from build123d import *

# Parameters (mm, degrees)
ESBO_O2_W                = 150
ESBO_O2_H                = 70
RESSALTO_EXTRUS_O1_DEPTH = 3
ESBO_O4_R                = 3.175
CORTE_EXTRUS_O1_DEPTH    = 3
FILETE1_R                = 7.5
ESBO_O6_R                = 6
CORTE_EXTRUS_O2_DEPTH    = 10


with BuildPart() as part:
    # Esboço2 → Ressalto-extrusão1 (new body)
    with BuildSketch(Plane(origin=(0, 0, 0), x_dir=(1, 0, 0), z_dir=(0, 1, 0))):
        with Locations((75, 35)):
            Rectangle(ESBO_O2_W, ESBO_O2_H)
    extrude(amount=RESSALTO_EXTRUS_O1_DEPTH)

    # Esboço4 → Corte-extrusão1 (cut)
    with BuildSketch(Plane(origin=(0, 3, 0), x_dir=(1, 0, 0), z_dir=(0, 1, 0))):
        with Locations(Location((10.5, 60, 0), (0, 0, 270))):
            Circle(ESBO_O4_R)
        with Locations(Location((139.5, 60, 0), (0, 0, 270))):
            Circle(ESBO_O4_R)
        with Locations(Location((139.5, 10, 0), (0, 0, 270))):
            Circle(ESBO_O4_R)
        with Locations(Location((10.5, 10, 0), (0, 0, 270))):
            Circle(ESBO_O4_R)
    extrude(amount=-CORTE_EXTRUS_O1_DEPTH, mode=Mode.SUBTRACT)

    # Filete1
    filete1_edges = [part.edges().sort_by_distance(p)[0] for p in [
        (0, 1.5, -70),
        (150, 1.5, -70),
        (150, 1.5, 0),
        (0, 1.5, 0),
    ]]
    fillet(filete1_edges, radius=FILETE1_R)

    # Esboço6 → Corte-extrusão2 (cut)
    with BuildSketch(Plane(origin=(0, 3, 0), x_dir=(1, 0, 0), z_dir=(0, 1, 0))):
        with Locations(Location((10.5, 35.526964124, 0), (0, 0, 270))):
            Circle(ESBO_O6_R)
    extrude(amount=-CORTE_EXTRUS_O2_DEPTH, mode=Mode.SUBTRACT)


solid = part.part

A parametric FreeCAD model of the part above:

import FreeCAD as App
import Part
import Sketcher
from FreeCAD import Vector
Q = App.Units.Quantity


def edges_at(feature, points):
    """Names of the edges that pass closest to the given points."""
    edges = feature.Shape.Edges
    near = lambda p: min(range(len(edges)), key=lambda i: edges[i].distToShape(Part.Vertex(*p))[0])
    return sorted({f"Edge{near(p) + 1}" for p in points})

doc = App.newDocument("Part")
body = doc.addObject("PartDesign::Body", "Body")

# Sketch on XZ plane
sketch1 = doc.addObject("Sketcher::SketchObject", "Sketch")
body.addObject(sketch1)
sketch1.AttachmentSupport = (doc.XZ_Plane, [""])
sketch1.MapMode = "FlatFace"
sketch1.addGeometry(Part.LineSegment(Vector(0, -70, 0), Vector(0, 0, 0)), False)
sketch1.addGeometry(Part.LineSegment(Vector(0, 0, 0), Vector(150, 0, 0)), False)
sketch1.addGeometry(Part.LineSegment(Vector(150, 0, 0), Vector(150, -70, 0)), False)
sketch1.addGeometry(Part.LineSegment(Vector(150, -70, 0), Vector(0, -70, 0)), False)
sketch1.addConstraint(Sketcher.Constraint("Coincident", 0, 2, 1, 1))
sketch1.addConstraint(Sketcher.Constraint("Coincident", 1, 2, 2, 1))
sketch1.addConstraint(Sketcher.Constraint("Coincident", 2, 2, 3, 1))
sketch1.addConstraint(Sketcher.Constraint("Coincident", 3, 2, 0, 1))
sketch1.addConstraint(Sketcher.Constraint("Vertical", 0))
sketch1.addConstraint(Sketcher.Constraint("Horizontal", 1))
sketch1.addConstraint(Sketcher.Constraint("Vertical", 2))
sketch1.addConstraint(Sketcher.Constraint("Horizontal", 3))
sketch1.addConstraint(Sketcher.Constraint("Coincident", 0, 2, -1, 1))
sketch1.addConstraint(Sketcher.Constraint("DistanceX", 1, 1, 1, 2, Q("150 mm")))
sketch1.addConstraint(Sketcher.Constraint("DistanceY", 0, 1, 0, 2, Q("70 mm")))
pad1 = doc.addObject("PartDesign::Pad", "Pad")
body.addObject(pad1)
pad1.Profile = sketch1
pad1.Length = 3
pad1.Reversed = True

# Sketch on XZ plane
sketch2 = doc.addObject("Sketcher::SketchObject", "Sketch001")
body.addObject(sketch2)
sketch2.AttachmentSupport = (doc.XZ_Plane, [""])
sketch2.MapMode = "FlatFace"
sketch2.AttachmentOffset = App.Placement(Vector(0, 0, -3), App.Rotation())
sketch2.addGeometry(Part.Circle(Vector(10.5, -60, 0), Vector(0, 0, 1), 3.2), False)
sketch2.addGeometry(Part.Circle(Vector(139.5, -60, 0), Vector(0, 0, 1), 3.2), False)
sketch2.addGeometry(Part.Circle(Vector(139.5, -10, 0), Vector(0, 0, 1), 3.2), False)
sketch2.addGeometry(Part.Circle(Vector(10.5, -10, 0), Vector(0, 0, 1), 3.2), False)
sketch2.addConstraint(Sketcher.Constraint("Equal", 0, 1))
sketch2.addConstraint(Sketcher.Constraint("Equal", 1, 2))
sketch2.addConstraint(Sketcher.Constraint("Equal", 2, 3))
sketch2.addConstraint(Sketcher.Constraint("Horizontal", 0, 3, 1, 3))
sketch2.addConstraint(Sketcher.Constraint("Horizontal", 2, 3, 3, 3))
sketch2.addConstraint(Sketcher.Constraint("Vertical", 1, 3, 2, 3))
sketch2.addConstraint(Sketcher.Constraint("Vertical", 0, 3, 3, 3))
sketch2.addConstraint(Sketcher.Constraint("Diameter", 0, Q("6.35 mm")))
sketch2.addConstraint(Sketcher.Constraint("DistanceY", 0, 3, -1, 1, Q("60 mm")))
sketch2.addConstraint(Sketcher.Constraint("DistanceY", 2, 3, -1, 1, Q("10 mm")))
sketch2.addConstraint(Sketcher.Constraint("DistanceX", 0, 3, 1, 3, Q("129 mm")))
sketch2.addConstraint(Sketcher.Constraint("DistanceX", -1, 1, 0, 3, Q("10.5 mm")))
pocket1 = doc.addObject("PartDesign::Pocket", "Pocket")
body.addObject(pocket1)
pocket1.Profile = sketch2
pocket1.Length = 3
pocket1.Reversed = True
doc.recompute()

fillet = doc.addObject("PartDesign::Fillet", "Fillet")
body.addObject(fillet)
fillet.Base = (pocket1, edges_at(pocket1, [
    (0, 1.5, -70),
    (150, 1.5, -70),
    (150, 1.5, 0),
    (0, 1.5, 0),
]))
fillet.Radius = 7.5

# Sketch on XZ plane
sketch3 = doc.addObject("Sketcher::SketchObject", "Sketch002")
body.addObject(sketch3)
sketch3.AttachmentSupport = (doc.XZ_Plane, [""])
sketch3.MapMode = "FlatFace"
sketch3.AttachmentOffset = App.Placement(Vector(0, 0, -3), App.Rotation())
sketch3.addGeometry(Part.Circle(Vector(10, -36, 0), Vector(0, 0, 1), 6), False)
sketch3.addConstraint(Sketcher.Constraint("Diameter", 0, Q("12 mm")))
sketch3.addConstraint(Sketcher.Constraint("DistanceX", -1, 1, 0, 3, Q("10.5 mm")))
sketch3.addConstraint(Sketcher.Constraint("DistanceY", 0, 3, -1, 1, Q("35.526964 mm")))
pocket2 = doc.addObject("PartDesign::Pocket", "Pocket001")
body.addObject(pocket2)
pocket2.Profile = sketch3
pocket2.Length = 10
pocket2.Reversed = True

doc.recompute()
